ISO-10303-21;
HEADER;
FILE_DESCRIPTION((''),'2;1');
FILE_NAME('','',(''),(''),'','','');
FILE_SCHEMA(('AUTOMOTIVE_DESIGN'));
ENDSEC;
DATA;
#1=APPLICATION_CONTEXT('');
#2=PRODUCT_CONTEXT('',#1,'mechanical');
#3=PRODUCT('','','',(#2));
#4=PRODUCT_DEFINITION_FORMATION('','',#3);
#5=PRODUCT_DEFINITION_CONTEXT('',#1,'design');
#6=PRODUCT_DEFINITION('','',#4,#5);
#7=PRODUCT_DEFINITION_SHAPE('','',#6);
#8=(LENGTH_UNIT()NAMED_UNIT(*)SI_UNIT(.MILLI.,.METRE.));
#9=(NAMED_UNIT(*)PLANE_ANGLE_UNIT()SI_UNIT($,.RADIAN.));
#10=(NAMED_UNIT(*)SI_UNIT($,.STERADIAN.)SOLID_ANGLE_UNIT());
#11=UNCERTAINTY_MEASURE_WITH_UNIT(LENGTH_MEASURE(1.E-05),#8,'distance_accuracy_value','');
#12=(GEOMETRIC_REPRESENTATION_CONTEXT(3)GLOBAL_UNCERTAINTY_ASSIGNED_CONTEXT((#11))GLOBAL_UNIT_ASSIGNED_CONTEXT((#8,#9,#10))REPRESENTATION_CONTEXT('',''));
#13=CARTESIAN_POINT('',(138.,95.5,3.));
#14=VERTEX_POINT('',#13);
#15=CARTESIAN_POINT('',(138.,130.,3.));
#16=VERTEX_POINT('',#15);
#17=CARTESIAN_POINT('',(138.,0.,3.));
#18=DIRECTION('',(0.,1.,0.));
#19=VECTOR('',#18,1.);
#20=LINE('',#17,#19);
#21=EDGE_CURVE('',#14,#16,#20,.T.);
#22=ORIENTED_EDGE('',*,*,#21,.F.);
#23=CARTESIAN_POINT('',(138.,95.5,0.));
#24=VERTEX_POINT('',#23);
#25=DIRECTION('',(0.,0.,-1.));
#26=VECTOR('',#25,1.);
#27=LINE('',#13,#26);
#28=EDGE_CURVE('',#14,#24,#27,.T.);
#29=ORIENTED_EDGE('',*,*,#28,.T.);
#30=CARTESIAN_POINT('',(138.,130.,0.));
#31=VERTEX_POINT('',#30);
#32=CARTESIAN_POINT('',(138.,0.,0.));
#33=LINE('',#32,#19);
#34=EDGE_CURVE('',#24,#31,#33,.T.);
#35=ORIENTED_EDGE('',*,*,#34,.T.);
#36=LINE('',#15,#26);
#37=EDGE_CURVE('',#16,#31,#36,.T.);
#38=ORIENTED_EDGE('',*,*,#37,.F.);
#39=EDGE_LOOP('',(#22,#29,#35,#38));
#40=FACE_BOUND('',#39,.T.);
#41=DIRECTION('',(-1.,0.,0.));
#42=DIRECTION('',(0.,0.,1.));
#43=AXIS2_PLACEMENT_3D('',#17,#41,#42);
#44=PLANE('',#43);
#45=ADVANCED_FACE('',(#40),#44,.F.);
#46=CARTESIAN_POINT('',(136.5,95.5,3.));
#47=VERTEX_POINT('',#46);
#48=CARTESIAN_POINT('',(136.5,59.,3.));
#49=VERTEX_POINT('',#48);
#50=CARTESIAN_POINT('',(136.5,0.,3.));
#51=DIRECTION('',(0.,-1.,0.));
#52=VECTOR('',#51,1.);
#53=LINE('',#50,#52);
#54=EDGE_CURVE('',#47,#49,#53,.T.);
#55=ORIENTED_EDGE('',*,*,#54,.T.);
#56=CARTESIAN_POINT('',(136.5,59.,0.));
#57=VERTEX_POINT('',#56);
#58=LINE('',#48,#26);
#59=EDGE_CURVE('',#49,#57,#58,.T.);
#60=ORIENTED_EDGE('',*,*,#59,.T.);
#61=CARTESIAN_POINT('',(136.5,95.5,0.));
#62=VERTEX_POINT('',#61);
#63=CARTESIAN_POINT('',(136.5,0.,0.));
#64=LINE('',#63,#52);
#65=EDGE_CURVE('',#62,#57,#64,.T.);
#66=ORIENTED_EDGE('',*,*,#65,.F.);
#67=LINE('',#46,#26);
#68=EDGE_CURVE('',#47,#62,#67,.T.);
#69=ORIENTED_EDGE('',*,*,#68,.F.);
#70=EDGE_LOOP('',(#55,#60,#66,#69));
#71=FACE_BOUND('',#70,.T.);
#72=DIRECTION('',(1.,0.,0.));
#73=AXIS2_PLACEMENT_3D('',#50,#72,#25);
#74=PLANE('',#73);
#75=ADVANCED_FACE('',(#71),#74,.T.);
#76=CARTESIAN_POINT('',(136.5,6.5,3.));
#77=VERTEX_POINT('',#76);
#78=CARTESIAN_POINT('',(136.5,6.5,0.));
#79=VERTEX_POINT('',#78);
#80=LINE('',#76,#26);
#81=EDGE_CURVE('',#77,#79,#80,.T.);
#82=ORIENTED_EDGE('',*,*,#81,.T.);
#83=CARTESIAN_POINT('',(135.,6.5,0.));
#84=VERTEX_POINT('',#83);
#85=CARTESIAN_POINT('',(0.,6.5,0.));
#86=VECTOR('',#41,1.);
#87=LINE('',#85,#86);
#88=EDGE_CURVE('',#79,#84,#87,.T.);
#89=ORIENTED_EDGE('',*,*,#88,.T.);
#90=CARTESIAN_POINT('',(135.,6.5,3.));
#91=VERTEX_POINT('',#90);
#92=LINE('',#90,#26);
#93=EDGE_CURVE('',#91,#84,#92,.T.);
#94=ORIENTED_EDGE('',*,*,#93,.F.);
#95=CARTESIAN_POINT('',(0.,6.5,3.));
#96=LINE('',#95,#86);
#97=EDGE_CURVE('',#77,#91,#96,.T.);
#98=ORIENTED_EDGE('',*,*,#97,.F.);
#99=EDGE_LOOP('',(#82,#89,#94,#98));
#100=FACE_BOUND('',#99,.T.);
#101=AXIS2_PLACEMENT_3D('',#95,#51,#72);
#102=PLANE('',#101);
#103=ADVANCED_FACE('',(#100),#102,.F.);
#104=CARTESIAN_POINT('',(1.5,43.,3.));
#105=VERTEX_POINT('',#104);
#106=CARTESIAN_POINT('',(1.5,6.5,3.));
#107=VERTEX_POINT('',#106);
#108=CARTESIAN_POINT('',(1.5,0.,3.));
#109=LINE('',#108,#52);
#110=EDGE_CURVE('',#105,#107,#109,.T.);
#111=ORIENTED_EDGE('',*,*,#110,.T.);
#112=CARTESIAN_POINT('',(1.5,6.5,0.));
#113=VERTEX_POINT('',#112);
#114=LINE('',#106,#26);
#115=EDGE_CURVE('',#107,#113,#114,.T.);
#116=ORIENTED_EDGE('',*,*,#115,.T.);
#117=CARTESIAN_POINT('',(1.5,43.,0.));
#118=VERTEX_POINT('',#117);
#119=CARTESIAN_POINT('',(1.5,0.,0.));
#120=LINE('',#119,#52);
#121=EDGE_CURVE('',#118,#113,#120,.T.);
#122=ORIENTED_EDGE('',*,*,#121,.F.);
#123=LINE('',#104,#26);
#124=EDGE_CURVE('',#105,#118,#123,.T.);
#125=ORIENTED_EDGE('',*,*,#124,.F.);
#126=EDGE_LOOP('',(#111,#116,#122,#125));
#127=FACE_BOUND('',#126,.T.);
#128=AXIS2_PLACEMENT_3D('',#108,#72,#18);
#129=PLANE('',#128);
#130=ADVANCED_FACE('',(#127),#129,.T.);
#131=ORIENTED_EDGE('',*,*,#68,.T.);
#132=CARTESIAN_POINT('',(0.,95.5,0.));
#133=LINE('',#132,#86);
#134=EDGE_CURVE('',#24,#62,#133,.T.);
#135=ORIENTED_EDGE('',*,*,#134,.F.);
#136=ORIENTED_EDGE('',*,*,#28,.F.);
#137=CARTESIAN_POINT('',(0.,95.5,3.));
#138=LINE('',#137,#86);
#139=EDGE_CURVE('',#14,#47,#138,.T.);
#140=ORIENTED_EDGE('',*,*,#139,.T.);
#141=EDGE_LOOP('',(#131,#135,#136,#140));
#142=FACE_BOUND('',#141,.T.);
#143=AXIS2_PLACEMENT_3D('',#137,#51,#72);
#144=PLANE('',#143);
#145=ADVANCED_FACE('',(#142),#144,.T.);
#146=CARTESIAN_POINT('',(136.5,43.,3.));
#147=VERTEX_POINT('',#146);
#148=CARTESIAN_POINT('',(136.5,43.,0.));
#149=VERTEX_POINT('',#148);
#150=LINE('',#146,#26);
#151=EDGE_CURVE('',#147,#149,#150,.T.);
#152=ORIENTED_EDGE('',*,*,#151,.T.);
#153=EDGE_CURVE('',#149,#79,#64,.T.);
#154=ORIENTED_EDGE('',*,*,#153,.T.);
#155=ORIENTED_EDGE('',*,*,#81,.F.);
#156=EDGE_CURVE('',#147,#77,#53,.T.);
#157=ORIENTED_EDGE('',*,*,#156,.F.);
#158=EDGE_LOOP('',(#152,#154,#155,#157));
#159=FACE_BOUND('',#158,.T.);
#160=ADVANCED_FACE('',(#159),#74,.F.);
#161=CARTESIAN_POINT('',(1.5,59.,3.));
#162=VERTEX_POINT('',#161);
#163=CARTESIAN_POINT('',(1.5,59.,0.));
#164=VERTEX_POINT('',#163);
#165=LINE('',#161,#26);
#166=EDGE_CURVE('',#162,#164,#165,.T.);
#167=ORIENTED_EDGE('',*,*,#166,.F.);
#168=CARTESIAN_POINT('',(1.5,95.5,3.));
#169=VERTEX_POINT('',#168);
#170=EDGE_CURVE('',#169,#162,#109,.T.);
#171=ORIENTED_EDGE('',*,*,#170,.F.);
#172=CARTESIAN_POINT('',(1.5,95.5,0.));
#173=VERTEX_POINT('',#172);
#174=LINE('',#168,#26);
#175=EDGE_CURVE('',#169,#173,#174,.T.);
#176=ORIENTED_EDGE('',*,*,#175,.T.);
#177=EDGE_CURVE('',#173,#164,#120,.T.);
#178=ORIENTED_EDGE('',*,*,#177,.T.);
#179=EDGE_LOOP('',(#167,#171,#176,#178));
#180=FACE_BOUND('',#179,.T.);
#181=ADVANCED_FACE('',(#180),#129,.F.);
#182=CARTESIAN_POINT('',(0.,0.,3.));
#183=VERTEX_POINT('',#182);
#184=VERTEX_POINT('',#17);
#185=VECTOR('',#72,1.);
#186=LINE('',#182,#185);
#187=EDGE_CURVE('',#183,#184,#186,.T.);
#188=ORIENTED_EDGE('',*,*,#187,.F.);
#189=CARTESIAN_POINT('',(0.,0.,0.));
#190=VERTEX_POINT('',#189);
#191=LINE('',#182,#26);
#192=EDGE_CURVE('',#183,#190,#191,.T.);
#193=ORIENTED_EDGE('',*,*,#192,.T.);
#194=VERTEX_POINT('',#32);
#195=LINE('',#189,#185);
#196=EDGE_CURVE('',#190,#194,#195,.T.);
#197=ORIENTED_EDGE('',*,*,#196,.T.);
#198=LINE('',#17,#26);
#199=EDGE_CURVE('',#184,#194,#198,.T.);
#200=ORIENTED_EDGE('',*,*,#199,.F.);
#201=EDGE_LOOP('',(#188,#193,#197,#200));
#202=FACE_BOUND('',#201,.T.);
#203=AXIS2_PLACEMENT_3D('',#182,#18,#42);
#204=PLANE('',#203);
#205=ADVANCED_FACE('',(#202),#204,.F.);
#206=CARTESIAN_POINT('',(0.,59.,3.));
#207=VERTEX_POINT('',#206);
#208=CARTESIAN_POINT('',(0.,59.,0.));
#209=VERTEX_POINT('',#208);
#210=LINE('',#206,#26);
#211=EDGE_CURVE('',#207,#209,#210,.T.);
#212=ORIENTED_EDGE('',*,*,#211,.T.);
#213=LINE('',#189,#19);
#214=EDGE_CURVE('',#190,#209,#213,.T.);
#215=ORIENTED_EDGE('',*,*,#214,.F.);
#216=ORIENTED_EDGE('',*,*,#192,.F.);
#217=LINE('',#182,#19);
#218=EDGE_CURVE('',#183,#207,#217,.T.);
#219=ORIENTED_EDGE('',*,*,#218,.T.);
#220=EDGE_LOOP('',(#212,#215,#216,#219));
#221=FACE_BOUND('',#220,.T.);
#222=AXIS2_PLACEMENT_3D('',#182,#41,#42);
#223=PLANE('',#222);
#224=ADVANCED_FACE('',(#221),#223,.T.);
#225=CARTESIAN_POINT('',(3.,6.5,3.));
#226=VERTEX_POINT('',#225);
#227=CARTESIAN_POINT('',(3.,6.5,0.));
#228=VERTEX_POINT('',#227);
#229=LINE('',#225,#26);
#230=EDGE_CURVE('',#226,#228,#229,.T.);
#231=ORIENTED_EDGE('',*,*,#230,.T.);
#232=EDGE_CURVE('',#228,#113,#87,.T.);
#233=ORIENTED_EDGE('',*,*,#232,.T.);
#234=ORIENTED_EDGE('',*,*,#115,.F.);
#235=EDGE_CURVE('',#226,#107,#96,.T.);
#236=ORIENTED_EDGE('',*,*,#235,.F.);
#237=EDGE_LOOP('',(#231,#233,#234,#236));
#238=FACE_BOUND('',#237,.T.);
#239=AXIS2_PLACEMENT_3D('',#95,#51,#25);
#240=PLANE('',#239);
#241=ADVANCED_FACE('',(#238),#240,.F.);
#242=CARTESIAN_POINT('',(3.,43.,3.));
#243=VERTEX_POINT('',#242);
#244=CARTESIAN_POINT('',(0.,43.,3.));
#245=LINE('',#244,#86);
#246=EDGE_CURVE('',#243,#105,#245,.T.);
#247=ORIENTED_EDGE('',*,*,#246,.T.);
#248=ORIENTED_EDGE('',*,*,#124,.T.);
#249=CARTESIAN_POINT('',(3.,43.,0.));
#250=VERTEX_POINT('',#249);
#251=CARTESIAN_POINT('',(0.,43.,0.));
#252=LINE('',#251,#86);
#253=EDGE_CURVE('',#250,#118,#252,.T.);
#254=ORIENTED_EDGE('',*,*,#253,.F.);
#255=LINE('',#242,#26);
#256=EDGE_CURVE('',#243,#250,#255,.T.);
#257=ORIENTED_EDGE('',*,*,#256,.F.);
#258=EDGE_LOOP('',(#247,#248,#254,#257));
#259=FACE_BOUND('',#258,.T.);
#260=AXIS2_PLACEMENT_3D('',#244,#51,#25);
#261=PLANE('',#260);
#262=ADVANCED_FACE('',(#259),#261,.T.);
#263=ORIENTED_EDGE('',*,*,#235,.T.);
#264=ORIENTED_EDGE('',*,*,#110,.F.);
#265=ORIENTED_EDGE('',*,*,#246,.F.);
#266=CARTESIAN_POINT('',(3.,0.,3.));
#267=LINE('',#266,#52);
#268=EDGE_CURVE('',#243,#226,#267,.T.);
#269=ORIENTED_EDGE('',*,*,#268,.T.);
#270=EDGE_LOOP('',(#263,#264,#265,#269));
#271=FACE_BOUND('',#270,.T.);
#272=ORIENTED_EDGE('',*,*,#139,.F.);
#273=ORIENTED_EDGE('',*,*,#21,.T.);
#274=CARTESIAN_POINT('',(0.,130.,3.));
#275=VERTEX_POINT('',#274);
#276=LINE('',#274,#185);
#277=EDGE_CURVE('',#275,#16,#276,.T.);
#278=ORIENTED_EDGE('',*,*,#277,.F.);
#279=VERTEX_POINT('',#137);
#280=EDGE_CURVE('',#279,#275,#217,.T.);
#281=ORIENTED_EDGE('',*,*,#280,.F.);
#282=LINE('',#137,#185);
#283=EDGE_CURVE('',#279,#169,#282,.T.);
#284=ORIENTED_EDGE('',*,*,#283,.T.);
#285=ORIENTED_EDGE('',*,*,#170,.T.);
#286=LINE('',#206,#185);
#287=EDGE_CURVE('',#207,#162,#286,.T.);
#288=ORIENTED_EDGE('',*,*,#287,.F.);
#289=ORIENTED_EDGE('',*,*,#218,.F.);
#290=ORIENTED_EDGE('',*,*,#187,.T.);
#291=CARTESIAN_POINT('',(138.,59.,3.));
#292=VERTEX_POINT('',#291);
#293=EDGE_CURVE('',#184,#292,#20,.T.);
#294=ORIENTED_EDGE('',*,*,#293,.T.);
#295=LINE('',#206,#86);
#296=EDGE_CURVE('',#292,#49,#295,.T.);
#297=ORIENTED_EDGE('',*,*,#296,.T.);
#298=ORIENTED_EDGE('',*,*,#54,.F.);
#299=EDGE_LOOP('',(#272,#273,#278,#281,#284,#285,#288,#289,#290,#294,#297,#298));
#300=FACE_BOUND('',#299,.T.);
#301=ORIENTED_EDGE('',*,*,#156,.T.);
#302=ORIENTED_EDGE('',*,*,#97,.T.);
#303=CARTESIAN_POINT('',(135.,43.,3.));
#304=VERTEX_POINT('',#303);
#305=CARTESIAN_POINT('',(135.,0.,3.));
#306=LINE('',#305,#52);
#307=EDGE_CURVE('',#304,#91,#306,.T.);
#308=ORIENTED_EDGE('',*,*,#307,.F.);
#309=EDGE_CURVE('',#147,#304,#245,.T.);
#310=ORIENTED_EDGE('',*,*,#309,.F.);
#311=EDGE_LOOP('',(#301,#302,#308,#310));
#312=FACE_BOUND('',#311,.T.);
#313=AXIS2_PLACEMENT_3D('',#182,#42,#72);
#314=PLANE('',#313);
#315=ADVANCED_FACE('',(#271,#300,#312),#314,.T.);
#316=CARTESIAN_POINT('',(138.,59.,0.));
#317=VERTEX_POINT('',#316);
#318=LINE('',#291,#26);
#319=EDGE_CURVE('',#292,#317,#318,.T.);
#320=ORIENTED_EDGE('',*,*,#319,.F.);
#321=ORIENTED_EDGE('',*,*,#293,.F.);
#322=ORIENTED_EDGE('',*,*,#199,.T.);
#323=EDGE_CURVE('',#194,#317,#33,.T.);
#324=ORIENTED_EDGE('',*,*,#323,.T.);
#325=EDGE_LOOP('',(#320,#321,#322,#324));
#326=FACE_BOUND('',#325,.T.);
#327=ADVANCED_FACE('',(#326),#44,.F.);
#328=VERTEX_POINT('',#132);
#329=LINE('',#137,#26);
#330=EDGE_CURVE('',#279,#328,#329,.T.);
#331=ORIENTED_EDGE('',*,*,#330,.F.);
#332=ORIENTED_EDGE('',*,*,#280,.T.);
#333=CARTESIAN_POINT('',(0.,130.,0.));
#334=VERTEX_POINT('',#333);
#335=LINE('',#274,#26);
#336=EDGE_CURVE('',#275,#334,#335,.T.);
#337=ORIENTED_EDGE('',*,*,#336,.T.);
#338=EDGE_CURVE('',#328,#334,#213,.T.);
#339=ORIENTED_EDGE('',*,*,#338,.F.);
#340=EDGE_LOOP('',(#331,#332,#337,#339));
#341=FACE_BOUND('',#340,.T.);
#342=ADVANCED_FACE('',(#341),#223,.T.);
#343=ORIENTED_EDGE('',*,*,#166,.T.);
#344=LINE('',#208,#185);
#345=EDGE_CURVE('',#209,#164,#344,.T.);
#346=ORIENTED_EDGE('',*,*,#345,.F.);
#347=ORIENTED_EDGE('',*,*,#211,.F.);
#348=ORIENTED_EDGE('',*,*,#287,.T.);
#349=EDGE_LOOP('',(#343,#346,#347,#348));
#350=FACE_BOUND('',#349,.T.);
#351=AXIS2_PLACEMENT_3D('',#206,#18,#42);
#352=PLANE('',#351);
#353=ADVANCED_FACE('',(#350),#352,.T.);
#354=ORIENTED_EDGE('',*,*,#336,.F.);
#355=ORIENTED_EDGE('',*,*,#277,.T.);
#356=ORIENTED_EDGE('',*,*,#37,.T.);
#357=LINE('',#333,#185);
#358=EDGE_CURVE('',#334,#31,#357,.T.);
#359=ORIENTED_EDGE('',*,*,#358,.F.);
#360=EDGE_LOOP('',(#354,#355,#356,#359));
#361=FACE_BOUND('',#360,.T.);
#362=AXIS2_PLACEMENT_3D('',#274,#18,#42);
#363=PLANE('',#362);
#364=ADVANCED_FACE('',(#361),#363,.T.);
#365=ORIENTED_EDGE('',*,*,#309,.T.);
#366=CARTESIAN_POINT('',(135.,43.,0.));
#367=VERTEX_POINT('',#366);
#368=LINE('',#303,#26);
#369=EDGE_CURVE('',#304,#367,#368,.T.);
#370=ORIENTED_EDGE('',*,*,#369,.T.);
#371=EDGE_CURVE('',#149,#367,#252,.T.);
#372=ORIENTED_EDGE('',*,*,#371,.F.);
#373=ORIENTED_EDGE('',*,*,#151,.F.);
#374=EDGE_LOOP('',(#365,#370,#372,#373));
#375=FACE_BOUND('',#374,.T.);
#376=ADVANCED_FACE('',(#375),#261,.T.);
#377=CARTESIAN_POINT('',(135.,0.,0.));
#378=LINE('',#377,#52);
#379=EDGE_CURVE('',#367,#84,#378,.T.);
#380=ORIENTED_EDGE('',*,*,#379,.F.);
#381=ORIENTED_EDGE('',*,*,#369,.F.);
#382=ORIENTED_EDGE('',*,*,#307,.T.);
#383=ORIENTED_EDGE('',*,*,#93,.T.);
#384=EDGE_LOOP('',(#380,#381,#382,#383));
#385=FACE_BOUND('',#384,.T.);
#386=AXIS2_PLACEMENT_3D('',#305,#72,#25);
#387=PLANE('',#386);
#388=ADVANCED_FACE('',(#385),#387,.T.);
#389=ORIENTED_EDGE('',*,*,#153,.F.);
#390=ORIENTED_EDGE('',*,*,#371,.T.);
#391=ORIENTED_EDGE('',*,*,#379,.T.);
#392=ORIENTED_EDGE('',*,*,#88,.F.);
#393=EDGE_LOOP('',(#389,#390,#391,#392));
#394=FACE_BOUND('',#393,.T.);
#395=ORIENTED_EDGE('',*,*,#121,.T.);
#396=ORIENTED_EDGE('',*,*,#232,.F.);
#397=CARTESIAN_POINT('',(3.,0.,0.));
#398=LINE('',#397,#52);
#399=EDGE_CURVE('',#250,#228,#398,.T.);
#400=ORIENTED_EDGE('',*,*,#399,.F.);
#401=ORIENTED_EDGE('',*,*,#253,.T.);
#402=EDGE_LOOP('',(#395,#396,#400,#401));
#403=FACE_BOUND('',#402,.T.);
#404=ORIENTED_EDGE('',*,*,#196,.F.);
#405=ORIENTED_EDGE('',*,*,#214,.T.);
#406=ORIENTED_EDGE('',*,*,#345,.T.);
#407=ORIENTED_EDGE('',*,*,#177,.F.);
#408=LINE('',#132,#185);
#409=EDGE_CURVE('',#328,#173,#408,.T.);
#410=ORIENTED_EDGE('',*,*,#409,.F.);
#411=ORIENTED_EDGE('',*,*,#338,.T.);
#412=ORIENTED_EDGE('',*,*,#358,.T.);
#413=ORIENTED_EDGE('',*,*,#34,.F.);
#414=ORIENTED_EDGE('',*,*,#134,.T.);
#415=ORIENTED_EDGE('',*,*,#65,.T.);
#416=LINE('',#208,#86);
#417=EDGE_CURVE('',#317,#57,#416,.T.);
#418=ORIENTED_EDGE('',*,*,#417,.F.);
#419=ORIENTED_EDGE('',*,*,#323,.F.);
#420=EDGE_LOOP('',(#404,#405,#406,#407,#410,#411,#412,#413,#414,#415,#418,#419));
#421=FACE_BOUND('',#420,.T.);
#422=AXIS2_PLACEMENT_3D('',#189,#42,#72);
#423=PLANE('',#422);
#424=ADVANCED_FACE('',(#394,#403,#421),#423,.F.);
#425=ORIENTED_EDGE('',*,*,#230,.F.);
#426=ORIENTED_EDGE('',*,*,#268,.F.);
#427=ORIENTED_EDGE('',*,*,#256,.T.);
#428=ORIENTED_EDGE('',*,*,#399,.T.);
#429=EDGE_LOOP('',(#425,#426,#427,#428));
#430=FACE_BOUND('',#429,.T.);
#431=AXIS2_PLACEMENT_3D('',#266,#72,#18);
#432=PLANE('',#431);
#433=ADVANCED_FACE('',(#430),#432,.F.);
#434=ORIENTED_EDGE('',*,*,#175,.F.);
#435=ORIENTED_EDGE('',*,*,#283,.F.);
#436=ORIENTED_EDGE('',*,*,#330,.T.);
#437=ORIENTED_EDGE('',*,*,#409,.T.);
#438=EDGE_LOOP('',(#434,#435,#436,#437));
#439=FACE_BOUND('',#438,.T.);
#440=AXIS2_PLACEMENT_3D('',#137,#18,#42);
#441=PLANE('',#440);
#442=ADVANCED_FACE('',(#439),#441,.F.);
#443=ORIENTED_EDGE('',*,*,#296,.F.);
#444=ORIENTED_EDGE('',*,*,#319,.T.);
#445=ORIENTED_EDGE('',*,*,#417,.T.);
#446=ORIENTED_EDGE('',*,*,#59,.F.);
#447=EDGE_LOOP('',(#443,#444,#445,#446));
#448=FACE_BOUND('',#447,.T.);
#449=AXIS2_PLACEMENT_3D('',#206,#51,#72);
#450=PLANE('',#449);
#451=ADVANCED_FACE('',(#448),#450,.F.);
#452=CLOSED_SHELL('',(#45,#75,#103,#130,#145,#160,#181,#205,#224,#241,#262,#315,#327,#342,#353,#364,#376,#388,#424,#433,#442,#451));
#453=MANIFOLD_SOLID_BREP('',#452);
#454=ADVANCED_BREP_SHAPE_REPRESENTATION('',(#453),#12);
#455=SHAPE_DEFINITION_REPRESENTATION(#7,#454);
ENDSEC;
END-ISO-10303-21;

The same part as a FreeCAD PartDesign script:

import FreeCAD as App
import Part
import Sketcher
Q = App.Units.Quantity

doc = App.newDocument("Part")
params = doc.addObject("Spreadsheet::Sheet", "Params")
for row, (alias, value) in enumerate([
    ("sketch1_width", "138 mm"),
    ("sketch1_height", "59 mm"),
    ("sketch1_width2", "1.5 mm"),
    ("sketch1_height2", "36.5 mm"),
    ("sketch1_height3", "34.5 mm"),
    ("pad1_length", "3 mm"),
], start=1):
    params.set(f"A{row}", alias)
    params.set(f"B{row}", "=" + value)
    params.setAlias(f"B{row}", alias)

body = doc.addObject("PartDesign::Body", "Body")

# Sketch on XY plane
sketch1 = body.newObject("Sketcher::SketchObject", "Sketch")
sketch1.AttachmentSupport = (doc.getObject("XY_Plane"), [""])
sketch1.MapMode = "FlatFace"
sketch1.addGeometry([
    Part.LineSegment(App.Vector(0, 59, 0), App.Vector(0, 0, 0)),  # 0
    Part.LineSegment(App.Vector(0, 0, 0), App.Vector(138, 0, 0)),  # 1
    Part.LineSegment(App.Vector(138, 0, 0), App.Vector(138, 59, 0)),  # 2
    Part.LineSegment(App.Vector(138, 59, 0), App.Vector(136.5, 59, 0)),  # 3
    Part.LineSegment(App.Vector(136.5, 59, 0), App.Vector(136.5, 95.5, 0)),  # 4
    Part.LineSegment(App.Vector(136.5, 95.5, 0), App.Vector(138, 95.5, 0)),  # 5
    Part.LineSegment(App.Vector(138, 95.5, 0), App.Vector(138, 130, 0)),  # 6
    Part.LineSegment(App.Vector(138, 130, 0), App.Vector(0, 130, 0)),  # 7
    Part.LineSegment(App.Vector(0, 130, 0), App.Vector(0, 95.5, 0)),  # 8
    Part.LineSegment(App.Vector(0, 95.5, 0), App.Vector(1.5, 95.5, 0)),  # 9
    Part.LineSegment(App.Vector(1.5, 95.5, 0), App.Vector(1.5, 59, 0)),  # 10
    Part.LineSegment(App.Vector(1.5, 59, 0), App.Vector(0, 59, 0)),  # 11
    Part.LineSegment(App.Vector(3, 6.5, 0), App.Vector(1.5, 6.5, 0)),  # 12
    Part.LineSegment(App.Vector(1.5, 6.5, 0), App.Vector(1.5, 43, 0)),  # 13
    Part.LineSegment(App.Vector(1.5, 43, 0), App.Vector(3, 43, 0)),  # 14
    Part.LineSegment(App.Vector(3, 43, 0), App.Vector(3, 6.5, 0)),  # 15
    Part.LineSegment(App.Vector(136.5, 6.5, 0), App.Vector(135, 6.5, 0)),  # 16
    Part.LineSegment(App.Vector(135, 6.5, 0), App.Vector(135, 43, 0)),  # 17
    Part.LineSegment(App.Vector(135, 43, 0), App.Vector(136.5, 43, 0)),  # 18
    Part.LineSegment(App.Vector(136.5, 43, 0), App.Vector(136.5, 6.5, 0)),  # 19
], False)
sketch1.addConstraint([
    Sketcher.Constraint("Coincident", 0, 2, 1, 1),
    Sketcher.Constraint("Coincident", 1, 2, 2, 1),
    Sketcher.Constraint("Coincident", 2, 2, 3, 1),
    Sketcher.Constraint("Coincident", 3, 2, 4, 1),
    Sketcher.Constraint("Coincident", 4, 2, 5, 1),
    Sketcher.Constraint("Coincident", 5, 2, 6, 1),
    Sketcher.Constraint("Coincident", 6, 2, 7, 1),
    Sketcher.Constraint("Coincident", 7, 2, 8, 1),
    Sketcher.Constraint("Coincident", 8, 2, 9, 1),
    Sketcher.Constraint("Coincident", 9, 2, 10, 1),
    Sketcher.Constraint("Coincident", 10, 2, 11, 1),
    Sketcher.Constraint("Coincident", 11, 2, 0, 1),
    Sketcher.Constraint("Coincident", 12, 2, 13, 1),
    Sketcher.Constraint("Coincident", 13, 2, 14, 1),
    Sketcher.Constraint("Coincident", 14, 2, 15, 1),
    Sketcher.Constraint("Coincident", 15, 2, 12, 1),
    Sketcher.Constraint("Coincident", 16, 2, 17, 1),
    Sketcher.Constraint("Coincident", 17, 2, 18, 1),
    Sketcher.Constraint("Coincident", 18, 2, 19, 1),
    Sketcher.Constraint("Coincident", 19, 2, 16, 1),
    Sketcher.Constraint("Vertical", 0),
    Sketcher.Constraint("Horizontal", 1),
    Sketcher.Constraint("Vertical", 2),
    Sketcher.Constraint("Horizontal", 3),
    Sketcher.Constraint("Vertical", 4),
    Sketcher.Constraint("Horizontal", 5),
    Sketcher.Constraint("Vertical", 6),
    Sketcher.Constraint("Horizontal", 7),
    Sketcher.Constraint("Vertical", 8),
    Sketcher.Constraint("Horizontal", 9),
    Sketcher.Constraint("Vertical", 10),
    Sketcher.Constraint("Horizontal", 11),
    Sketcher.Constraint("Horizontal", 12),
    Sketcher.Constraint("Vertical", 13),
    Sketcher.Constraint("Horizontal", 14),
    Sketcher.Constraint("Vertical", 15),
    Sketcher.Constraint("Horizontal", 16),
    Sketcher.Constraint("Vertical", 17),
    Sketcher.Constraint("Horizontal", 18),
    Sketcher.Constraint("Vertical", 19),
    Sketcher.Constraint("Coincident", 0, 2, -1, 1),
    Sketcher.Constraint("PointOnObject", 7, 2, -2),
    Sketcher.Constraint("Horizontal", 5, 2, 8, 2),
    Sketcher.Constraint("Horizontal", 3, 2, 10, 2),
    Sketcher.Constraint("Horizontal", 15, 2, 16, 2),
    Sketcher.Constraint("Horizontal", 14, 2, 17, 2),
    Sketcher.Constraint("Vertical", 2, 2, 5, 2),
    Sketcher.Constraint("Vertical", 10, 2, 12, 2),
    Sketcher.Constraint("Vertical", 4, 2, 18, 2),
    Sketcher.Constraint("Equal", 5, 9),
    Sketcher.Constraint("Equal", 11, 12),
    Sketcher.Constraint("Equal", 14, 16),
    Sketcher.Constraint("Equal", 10, 13),
    Sketcher.Constraint("DistanceX", 1, 1, 1, 2, Q("138 mm")),
    Sketcher.Constraint("DistanceY", 0, 2, 0, 1, Q("59 mm")),
    Sketcher.Constraint("DistanceX", 3, 2, 3, 1, Q("1.5 mm")),
    Sketcher.Constraint("DistanceY", 4, 1, 4, 2, Q("36.5 mm")),
    Sketcher.Constraint("DistanceY", 6, 1, 6, 2, Q("34.5 mm")),
    Sketcher.Constraint("DistanceY", -1, 1, 13, 2, Q("43 mm")),
])
sketch1.setExpression("Constraints[53]", "Params.sketch1_width")
sketch1.setExpression("Constraints[54]", "Params.sketch1_height")
sketch1.setExpression("Constraints[55]", "Params.sketch1_width2")
sketch1.setExpression("Constraints[56]", "Params.sketch1_height2")
sketch1.setExpression("Constraints[57]", "Params.sketch1_height3")
pad1 = body.newObject("PartDesign::Pad", "Pad")
pad1.Profile = sketch1
pad1.setExpression("Length", "Params.pad1_length")

doc.recompute()
